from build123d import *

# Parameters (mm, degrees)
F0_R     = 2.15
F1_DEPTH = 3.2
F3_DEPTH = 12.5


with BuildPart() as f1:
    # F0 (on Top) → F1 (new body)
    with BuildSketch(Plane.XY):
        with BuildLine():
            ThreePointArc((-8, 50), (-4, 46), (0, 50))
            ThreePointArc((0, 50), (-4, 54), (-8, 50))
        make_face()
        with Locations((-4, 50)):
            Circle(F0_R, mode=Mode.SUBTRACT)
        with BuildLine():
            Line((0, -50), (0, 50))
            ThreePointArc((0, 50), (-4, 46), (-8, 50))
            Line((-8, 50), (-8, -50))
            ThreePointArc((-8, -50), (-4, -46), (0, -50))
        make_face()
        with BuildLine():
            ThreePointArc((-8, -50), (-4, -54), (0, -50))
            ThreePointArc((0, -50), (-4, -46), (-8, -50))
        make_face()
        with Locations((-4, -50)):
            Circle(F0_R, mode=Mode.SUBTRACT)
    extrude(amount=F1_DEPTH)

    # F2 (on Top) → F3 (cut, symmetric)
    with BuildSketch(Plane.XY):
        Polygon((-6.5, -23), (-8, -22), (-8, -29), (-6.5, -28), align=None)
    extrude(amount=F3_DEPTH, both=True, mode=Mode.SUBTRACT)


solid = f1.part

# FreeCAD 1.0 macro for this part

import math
import FreeCAD as App
import Part
import Sketcher

V = App.Vector


def add_polygon(sketch, points):
    """Adds a closed chain of lines whose ends are joined by coincident constraints."""
    first, n = sketch.GeometryCount, len(points)
    for a, b in zip(points, points[1:] + points[:1]):
        sketch.addGeometry(Part.LineSegment(App.Vector(*a, 0), App.Vector(*b, 0)), False)
    for i in range(n):
        sketch.addConstraint(Sketcher.Constraint("Coincident", first + i, 2, first + (i + 1) % n, 1))

doc = App.newDocument("Part")
body = doc.addObject("PartDesign::Body", "Body")

# Sketch on XY plane
sketch1 = body.newObject("Sketcher::SketchObject", "Sketch")
sketch1.AttachmentSupport = (doc.getObject("XY_Plane"), [""])
sketch1.MapMode = "FlatFace"
sketch1.addGeometry([
    Part.ArcOfCircle(Part.Circle(V(-4, 50, 0), V(0, 0, 1), 4), math.radians(0), math.radians(180)),  # 0
    Part.LineSegment(V(-8, 50, 0), V(-8, -50, 0)),  # 1
    Part.ArcOfCircle(Part.Circle(V(-4, -50, 0), V(0, 0, 1), 4), math.radians(180), math.radians(360)),  # 2
    Part.LineSegment(V(0, -50, 0), V(0, 50, 0)),  # 3
    Part.Circle(V(-4, -50, 0), V(0, 0, 1), 2.15),  # 4
    Part.Circle(V(-4, 50, 0), V(0, 0, 1), 2.15),  # 5
], False)
sketch1.addConstraint([
    Sketcher.Constraint("Tangent", 0, 2, 1, 1),
    Sketcher.Constraint("Tangent", 1, 2, 2, 1),
    Sketcher.Constraint("Tangent", 2, 2, 3, 1),
    Sketcher.Constraint("Tangent", 3, 2, 0, 1),
    Sketcher.Constraint("Vertical", 1),
    Sketcher.Constraint("Vertical", 3),
    Sketcher.Constraint("Coincident", 4, 3, 2, 3),
    Sketcher.Constraint("Coincident", 5, 3, 0, 3),
    Sketcher.Constraint("Equal", 4, 5),
    Sketcher.Constraint("Symmetric", 2, 2, 3, 2, -1, 1),
    Sketcher.Constraint("Radius", 0, 4.0),
    Sketcher.Constraint("Diameter", 4, 4.3),
    Sketcher.Constraint("DistanceY", 1, 2, 1, 1, 100.0),
])
pad1 = body.newObject("PartDesign::Pad", "Pad")
pad1.Profile = sketch1
pad1.Length = 3.2

# Sketch on XY plane
sketch2 = body.newObject("Sketcher::SketchObject", "Sketch001")
sketch2.AttachmentSupport = (doc.getObject("XY_Plane"), [""])
sketch2.MapMode = "FlatFace"
add_polygon(sketch2, [(-6.5, -23), (-8, -22), (-8, -29), (-6.5, -28)])  # lines 0-3
sketch2.addConstraint([
    Sketcher.Constraint("Vertical", 1),
    Sketcher.Constraint("Vertical", 3),
    Sketcher.Constraint("Equal", 0, 2),
    Sketcher.Constraint("DistanceY", 1, 2, 1, 1, 7.0),
    Sketcher.Constraint("DistanceY", 3, 1, 3, 2, 5.0),
    Sketcher.Constraint("DistanceX", 0, 2, -1, 1, 8.0),
    Sketcher.Constraint("DistanceY", 0, 2, -1, 1, 22.0),
    Sketcher.Constraint("DistanceX", 2, 2, -1, 1, 6.5),
])
pocket1 = body.newObject("PartDesign::Pocket", "Pocket")
pocket1.Profile = sketch2
pocket1.Length = 25
pocket1.Midplane = True

doc.recompute()
